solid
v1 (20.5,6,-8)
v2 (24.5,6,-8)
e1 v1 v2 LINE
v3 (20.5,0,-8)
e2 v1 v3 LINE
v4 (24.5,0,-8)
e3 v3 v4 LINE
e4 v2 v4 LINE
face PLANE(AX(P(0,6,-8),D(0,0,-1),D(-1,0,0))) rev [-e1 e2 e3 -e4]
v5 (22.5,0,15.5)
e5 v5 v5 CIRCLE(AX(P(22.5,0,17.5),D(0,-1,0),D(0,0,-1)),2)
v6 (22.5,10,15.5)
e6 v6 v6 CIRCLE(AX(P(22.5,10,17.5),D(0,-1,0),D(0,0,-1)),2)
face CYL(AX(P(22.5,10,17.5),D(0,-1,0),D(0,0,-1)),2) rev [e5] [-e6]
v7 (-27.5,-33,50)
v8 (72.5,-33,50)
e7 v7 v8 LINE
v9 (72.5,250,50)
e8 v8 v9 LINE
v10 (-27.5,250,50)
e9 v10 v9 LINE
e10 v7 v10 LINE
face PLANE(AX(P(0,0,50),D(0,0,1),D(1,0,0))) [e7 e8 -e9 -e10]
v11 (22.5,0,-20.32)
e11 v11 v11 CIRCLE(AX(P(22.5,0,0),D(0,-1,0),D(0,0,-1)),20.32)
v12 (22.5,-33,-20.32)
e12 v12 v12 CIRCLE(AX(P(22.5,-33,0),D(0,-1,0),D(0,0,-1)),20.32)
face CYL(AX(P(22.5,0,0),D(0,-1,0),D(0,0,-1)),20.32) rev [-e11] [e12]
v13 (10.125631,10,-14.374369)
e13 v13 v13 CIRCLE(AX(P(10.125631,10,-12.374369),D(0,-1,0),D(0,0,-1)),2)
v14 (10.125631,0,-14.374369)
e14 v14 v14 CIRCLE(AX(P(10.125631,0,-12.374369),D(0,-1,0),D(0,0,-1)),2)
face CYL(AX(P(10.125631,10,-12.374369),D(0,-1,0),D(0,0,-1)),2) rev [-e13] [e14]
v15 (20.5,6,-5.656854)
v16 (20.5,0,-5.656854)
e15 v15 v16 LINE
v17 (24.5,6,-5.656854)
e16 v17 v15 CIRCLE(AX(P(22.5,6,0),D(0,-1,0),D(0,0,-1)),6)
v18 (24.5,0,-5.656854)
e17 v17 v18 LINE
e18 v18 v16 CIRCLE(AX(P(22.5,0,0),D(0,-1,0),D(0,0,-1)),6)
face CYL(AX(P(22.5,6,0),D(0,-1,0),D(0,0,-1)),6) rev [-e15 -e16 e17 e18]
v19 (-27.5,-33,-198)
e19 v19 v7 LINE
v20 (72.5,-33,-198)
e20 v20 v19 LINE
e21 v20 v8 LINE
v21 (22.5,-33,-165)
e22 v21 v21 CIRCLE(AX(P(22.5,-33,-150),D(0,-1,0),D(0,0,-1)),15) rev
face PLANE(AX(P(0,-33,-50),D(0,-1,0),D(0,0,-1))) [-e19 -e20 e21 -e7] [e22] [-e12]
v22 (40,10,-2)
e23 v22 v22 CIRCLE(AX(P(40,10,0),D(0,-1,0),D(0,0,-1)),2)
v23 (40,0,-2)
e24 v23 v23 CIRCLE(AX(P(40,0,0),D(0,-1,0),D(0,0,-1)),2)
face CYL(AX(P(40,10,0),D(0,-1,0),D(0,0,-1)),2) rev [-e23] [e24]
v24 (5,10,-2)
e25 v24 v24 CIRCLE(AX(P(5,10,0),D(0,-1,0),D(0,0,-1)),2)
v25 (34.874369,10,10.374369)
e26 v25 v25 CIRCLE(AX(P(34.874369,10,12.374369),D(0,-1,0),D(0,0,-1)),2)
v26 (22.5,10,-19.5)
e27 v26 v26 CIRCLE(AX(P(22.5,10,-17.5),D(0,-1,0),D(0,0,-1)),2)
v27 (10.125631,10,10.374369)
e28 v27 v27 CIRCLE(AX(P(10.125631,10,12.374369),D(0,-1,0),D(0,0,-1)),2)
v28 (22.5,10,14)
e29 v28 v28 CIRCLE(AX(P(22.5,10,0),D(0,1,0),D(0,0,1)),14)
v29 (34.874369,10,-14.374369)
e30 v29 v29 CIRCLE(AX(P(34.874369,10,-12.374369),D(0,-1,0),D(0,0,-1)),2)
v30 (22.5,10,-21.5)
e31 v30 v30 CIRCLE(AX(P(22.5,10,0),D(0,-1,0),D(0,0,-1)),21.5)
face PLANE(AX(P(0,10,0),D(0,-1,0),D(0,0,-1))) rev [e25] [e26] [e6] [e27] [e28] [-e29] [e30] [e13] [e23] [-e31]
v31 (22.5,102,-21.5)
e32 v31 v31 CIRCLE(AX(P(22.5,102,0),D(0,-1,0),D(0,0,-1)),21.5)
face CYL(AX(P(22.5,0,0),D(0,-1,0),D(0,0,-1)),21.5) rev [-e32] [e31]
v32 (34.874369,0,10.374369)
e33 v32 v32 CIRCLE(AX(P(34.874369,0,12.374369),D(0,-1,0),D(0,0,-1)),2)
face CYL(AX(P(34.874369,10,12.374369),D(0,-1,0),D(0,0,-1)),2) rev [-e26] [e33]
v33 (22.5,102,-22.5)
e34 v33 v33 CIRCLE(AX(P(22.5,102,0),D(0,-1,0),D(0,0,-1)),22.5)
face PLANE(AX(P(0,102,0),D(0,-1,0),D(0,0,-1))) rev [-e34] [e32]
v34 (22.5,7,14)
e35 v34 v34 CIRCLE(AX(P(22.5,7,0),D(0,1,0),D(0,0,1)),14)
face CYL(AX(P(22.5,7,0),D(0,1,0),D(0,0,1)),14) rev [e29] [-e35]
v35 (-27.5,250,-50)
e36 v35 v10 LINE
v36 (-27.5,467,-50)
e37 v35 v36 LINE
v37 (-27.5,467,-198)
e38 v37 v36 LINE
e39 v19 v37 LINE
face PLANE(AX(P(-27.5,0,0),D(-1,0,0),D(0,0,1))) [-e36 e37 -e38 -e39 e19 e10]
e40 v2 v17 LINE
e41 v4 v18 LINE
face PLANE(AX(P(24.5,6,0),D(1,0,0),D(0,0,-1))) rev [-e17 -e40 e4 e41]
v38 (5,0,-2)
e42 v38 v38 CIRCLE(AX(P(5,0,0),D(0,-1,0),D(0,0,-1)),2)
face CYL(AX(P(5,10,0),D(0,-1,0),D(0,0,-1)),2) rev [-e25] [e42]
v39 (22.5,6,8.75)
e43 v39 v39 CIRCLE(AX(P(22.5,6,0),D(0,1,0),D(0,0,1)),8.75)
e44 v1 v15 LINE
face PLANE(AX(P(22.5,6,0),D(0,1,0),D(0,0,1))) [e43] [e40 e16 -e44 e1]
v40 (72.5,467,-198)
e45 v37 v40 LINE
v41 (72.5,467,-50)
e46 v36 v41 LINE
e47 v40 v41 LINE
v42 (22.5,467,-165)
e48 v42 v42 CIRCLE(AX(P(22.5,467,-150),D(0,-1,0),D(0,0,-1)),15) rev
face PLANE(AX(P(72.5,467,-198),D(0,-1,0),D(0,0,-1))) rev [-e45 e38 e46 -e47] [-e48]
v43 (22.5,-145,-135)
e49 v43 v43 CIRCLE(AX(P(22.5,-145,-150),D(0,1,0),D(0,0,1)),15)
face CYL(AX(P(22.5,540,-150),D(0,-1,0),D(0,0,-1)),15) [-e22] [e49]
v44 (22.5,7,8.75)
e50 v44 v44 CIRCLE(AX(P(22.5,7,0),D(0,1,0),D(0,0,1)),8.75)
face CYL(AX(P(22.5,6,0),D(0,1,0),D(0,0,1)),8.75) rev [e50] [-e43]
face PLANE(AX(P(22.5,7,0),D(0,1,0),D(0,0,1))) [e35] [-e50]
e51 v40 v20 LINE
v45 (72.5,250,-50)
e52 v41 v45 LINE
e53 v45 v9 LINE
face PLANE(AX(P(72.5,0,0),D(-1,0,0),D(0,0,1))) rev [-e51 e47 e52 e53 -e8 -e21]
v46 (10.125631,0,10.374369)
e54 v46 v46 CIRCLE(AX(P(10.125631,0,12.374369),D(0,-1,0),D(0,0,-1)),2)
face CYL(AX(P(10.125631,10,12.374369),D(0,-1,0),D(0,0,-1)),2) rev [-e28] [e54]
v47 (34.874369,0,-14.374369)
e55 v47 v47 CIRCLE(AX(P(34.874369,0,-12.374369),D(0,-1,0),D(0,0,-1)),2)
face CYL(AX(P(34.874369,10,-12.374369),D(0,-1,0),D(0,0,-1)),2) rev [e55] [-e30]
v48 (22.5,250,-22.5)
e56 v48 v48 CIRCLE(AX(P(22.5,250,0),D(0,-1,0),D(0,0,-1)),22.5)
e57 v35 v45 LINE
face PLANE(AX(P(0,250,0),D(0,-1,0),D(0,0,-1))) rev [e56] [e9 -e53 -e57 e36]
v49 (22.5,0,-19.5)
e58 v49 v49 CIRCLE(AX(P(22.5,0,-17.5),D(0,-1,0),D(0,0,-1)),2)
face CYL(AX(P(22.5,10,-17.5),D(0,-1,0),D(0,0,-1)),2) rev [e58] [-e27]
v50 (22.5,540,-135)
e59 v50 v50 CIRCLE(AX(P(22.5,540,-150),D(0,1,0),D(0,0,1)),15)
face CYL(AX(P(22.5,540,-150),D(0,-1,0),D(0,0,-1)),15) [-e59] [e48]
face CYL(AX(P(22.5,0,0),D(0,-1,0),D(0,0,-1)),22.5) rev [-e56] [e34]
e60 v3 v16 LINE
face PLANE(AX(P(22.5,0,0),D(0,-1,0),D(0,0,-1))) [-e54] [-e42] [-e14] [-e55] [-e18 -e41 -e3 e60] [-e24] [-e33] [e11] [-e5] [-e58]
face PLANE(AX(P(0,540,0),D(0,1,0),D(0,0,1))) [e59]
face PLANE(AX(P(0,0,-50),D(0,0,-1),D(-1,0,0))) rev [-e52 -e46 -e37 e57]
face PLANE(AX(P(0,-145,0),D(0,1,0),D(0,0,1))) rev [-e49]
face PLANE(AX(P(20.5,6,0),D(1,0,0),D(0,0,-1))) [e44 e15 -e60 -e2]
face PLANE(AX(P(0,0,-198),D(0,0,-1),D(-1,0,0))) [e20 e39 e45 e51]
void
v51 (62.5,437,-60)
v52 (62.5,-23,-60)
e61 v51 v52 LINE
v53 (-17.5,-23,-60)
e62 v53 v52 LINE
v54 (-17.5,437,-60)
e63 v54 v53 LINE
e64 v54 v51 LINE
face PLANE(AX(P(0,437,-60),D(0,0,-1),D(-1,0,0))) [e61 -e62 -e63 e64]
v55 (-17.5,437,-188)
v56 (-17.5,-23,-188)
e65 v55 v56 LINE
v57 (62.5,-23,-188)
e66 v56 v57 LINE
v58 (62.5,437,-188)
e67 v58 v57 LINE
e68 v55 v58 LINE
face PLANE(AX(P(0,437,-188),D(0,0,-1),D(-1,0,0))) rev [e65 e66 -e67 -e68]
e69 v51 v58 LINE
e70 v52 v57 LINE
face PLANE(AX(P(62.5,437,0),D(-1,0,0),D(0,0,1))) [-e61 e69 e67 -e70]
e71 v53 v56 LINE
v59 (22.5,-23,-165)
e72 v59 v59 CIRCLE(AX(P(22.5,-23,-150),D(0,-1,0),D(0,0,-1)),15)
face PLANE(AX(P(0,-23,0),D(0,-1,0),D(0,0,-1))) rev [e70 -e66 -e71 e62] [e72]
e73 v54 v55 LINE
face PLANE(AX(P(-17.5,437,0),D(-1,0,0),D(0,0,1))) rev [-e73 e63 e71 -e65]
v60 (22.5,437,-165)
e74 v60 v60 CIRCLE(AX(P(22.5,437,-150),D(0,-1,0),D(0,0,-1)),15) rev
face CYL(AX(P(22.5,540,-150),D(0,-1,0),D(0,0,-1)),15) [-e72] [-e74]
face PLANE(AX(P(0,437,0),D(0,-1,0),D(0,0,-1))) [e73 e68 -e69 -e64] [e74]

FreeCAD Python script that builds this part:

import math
import FreeCAD as App
import Part
import Sketcher
from FreeCAD import Vector
Q = App.Units.Quantity


def add_polygon(sketch, points):
    """Adds a closed chain of lines whose ends are joined by coincident constraints."""
    first, n = sketch.GeometryCount, len(points)
    for a, b in zip(points, points[1:] + points[:1]):
        sketch.addGeometry(Part.LineSegment(App.Vector(*a, 0), App.Vector(*b, 0)), False)
    for i in range(n):
        sketch.addConstraint(Sketcher.Constraint("Coincident", first + i, 2, first + (i + 1) % n, 1))

doc = App.newDocument("Part")
params = doc.addObject("Spreadsheet::Sheet", "Params")
for row, (alias, value) in enumerate([
    ("sketch1_width", "1 mm"),
    ("sketch1_width2", "10 mm"),
    ("sketch1_height", "92 mm"),
    ("sketch1_height2", "148 mm"),
    ("sketch1_width3", "26.5 mm"),
    ("revolution_angle", "360 deg"),
    ("sketch2_diameter", "100 mm"),
    ("sketch2_diameter2", "65 mm"),
    ("pad1_length", "250 mm"),
    ("sketch3_radius", "50 mm"),
    ("pad2_length", "250 mm"),
    ("sketch4_width", "100 mm"),
    ("sketch4_height", "33 mm"),
    ("pad3_length", "50 mm"),
    ("pad3_length2", "50 mm"),
    ("sketch5_width", "100 mm"),
    ("sketch5_height", "500 mm"),
    ("pad4_length", "148 mm"),
    ("sketch6_diameter", "30 mm"),
    ("pad5_length", "73 mm"),
    ("pad5_length2", "612 mm"),
    ("sketch7_diameter", "30 mm"),
    ("sketch7_width", "80 mm"),
    ("sketch7_height", "128 mm"),
    ("pocket1_length", "470 mm"),
    ("sketch8_diameter", "30 mm"),
    ("sketch8_width", "80 mm"),
    ("sketch8_height", "128 mm"),
    ("pad6_length", "10 mm"),
    ("sketch9_width", "6 mm"),
    ("sketch9_height", "10 mm"),
    ("revolution2_angle", "360 deg"),
    ("sketch10_diameter", "40.64 mm"),
    ("pocket2_length", "33 mm"),
    ("sketch11_diameter", "4 mm"),
    ("pocket3_length", "10 mm"),
    ("sketch12_diameter", "28 mm"),
    ("pocket4_length", "3 mm"),
    ("sketch13_diameter", "17.5 mm"),
    ("pocket5_length", "4 mm"),
    ("sketch14_diameter", "12 mm"),
    ("pocket6_length", "6 mm"),
    ("sketch15_radius", "6 mm"),
    ("sketch15_width", "4 mm"),
    ("pocket7_length", "6 mm"),
], start=1):
    params.set(f"A{row}", alias)
    params.set(f"B{row}", "=" + value)
    params.setAlias(f"B{row}", alias)

body = doc.addObject("PartDesign::Body", "Body")

# Sketch on XY plane
sketch1 = body.newObject("Sketcher::SketchObject", "Sketch")
sketch1.AttachmentSupport = (doc.getObject("XY_Plane"), [""])
sketch1.MapMode = "FlatFace"
add_polygon(sketch1, [(-10, 0), (16.5, 0), (16.5, 10), (1, 10), (1, 102), (0, 102), (0, 250), (-10, 250)])  # lines 0-7
add_polygon(sketch1, [(28.5, 10), (28.5, 0), (55, 0), (55, 250), (45, 250), (45, 102), (44, 102), (44, 10)])  # lines 8-15
sketch1.addGeometry(Part.LineSegment(Vector(22.5, 0, 0), Vector(22.5, 250, 0)), True)  # axis
sketch1.addConstraint([
    Sketcher.Constraint("Horizontal", 0),
    Sketcher.Constraint("Vertical", 1),
    Sketcher.Constraint("Horizontal", 2),
    Sketcher.Constraint("Vertical", 3),
    Sketcher.Constraint("Horizontal", 4),
    Sketcher.Constraint("Vertical", 5),
    Sketcher.Constraint("Horizontal", 6),
    Sketcher.Constraint("Vertical", 7),
    Sketcher.Constraint("Vertical", 8),
    Sketcher.Constraint("Horizontal", 9),
    Sketcher.Constraint("Vertical", 10),
    Sketcher.Constraint("Horizontal", 11),
    Sketcher.Constraint("Vertical", 12),
    Sketcher.Constraint("Horizontal", 13),
    Sketcher.Constraint("Vertical", 14),
    Sketcher.Constraint("Horizontal", 15),
    Sketcher.Constraint("Vertical", 16),
    Sketcher.Constraint("PointOnObject", 0, 2, -1),
    Sketcher.Constraint("PointOnObject", 4, 2, -2),
    Sketcher.Constraint("PointOnObject", 8, 2, -1),
    Sketcher.Constraint("PointOnObject", 16, 1, -1),
    Sketcher.Constraint("Horizontal", 6, 2, 10, 2),
    Sketcher.Constraint("Horizontal", 4, 2, 12, 2),
    Sketcher.Constraint("Horizontal", 2, 2, 14, 2),
    Sketcher.Constraint("Horizontal", 11, 2, 16, 2),
    Sketcher.Constraint("Equal", 0, 9),
    Sketcher.Constraint("Equal", 6, 11),
    Sketcher.Constraint("Equal", 4, 13),
    Sketcher.Constraint("Equal", 11, 1),
    Sketcher.Constraint("DistanceX", 4, 2, 4, 1, Q("1 mm")),
    Sketcher.Constraint("DistanceX", 6, 2, 6, 1, Q("10 mm")),
    Sketcher.Constraint("DistanceY", 3, 1, 3, 2, Q("92 mm")),
    Sketcher.Constraint("DistanceY", 5, 1, 5, 2, Q("148 mm")),
    Sketcher.Constraint("DistanceX", 0, 1, 0, 2, Q("26.5 mm")),
    Sketcher.Constraint("DistanceX", -1, 1, 9, 2, Q("55 mm")),
    Sketcher.Constraint("DistanceX", 0, 2, 16, 1, Q("6 mm")),
])
sketch1.setExpression("Constraints[45]", "Params.sketch1_width")
sketch1.setExpression("Constraints[46]", "Params.sketch1_width2")
sketch1.setExpression("Constraints[47]", "Params.sketch1_height")
sketch1.setExpression("Constraints[48]", "Params.sketch1_height2")
sketch1.setExpression("Constraints[49]", "Params.sketch1_width3")
revolution = body.newObject("PartDesign::Revolution", "Revolution")
revolution.Profile = sketch1
revolution.ReferenceAxis = (sketch1, ["Axis0"])
revolution.setExpression("Angle", "Params.revolution_angle")

# Sketch on XZ plane
sketch2 = body.newObject("Sketcher::SketchObject", "Sketch001")
sketch2.AttachmentSupport = (doc.getObject("XZ_Plane"), [""])
sketch2.MapMode = "FlatFace"
sketch2.AttachmentOffset = App.Placement(Vector(0, 0, -250), App.Rotation())
sketch2.addGeometry([
    Part.Circle(Vector(22.5, 0, 0), Vector(0, 0, 1), 50),
    Part.Circle(Vector(22.5, 0, 0), Vector(0, 0, 1), 32.5),
], False)
sketch2.addConstraint([
    Sketcher.Constraint("Coincident", 1, 3, 0, 3),
    Sketcher.Constraint("PointOnObject", 0, 3, -1),
    Sketcher.Constraint("Diameter", 0, Q("100 mm")),
    Sketcher.Constraint("Diameter", 1, Q("65 mm")),
    Sketcher.Constraint("DistanceX", -1, 1, 0, 3, Q("22.5 mm")),
])
sketch2.setExpression("Constraints[2]", "Params.sketch2_diameter")
sketch2.setExpression("Constraints[3]", "Params.sketch2_diameter2")
pad1 = body.newObject("PartDesign::Pad", "Pad")
pad1.Profile = sketch2
pad1.setExpression("Length", "Params.pad1_length")

# Sketch on XZ plane
sketch3 = body.newObject("Sketcher::SketchObject", "Sketch002")
sketch3.AttachmentSupport = (doc.getObject("XZ_Plane"), [""])
sketch3.MapMode = "FlatFace"
sketch3.AttachmentOffset = App.Placement(Vector(0, 0, -250), App.Rotation())
sketch3.addGeometry([
    Part.ArcOfCircle(Part.Circle(Vector(22.5, 0, 0), Vector(0, 0, 1), 50), math.radians(0), math.radians(90)),  # 0
    Part.LineSegment(Vector(22.5, 50, 0), Vector(72.5, 50, 0)),  # 1
    Part.LineSegment(Vector(72.5, 50, 0), Vector(72.5, 0, 0)),  # 2
    Part.ArcOfCircle(Part.Circle(Vector(22.5, 0, 0), Vector(0, 0, 1), 50), math.radians(90), math.radians(180)),  # 3
    Part.LineSegment(Vector(-27.5, 0, 0), Vector(-27.5, 50, 0)),  # 4
    Part.LineSegment(Vector(-27.5, 50, 0), Vector(22.5, 50, 0)),  # 5
    Part.LineSegment(Vector(72.5, -50, 0), Vector(22.5, -50, 0)),  # 6
    Part.ArcOfCircle(Part.Circle(Vector(22.5, 0, 0), Vector(0, 0, 1), 50), math.radians(-90), math.radians(0)),  # 7
    Part.LineSegment(Vector(72.5, 0, 0), Vector(72.5, -50, 0)),  # 8
    Part.LineSegment(Vector(-27.5, -50, 0), Vector(-27.5, 0, 0)),  # 9
    Part.ArcOfCircle(Part.Circle(Vector(22.5, 0, 0), Vector(0, 0, 1), 50), math.radians(-180), math.radians(-90)),  # 10
    Part.LineSegment(Vector(22.5, -50, 0), Vector(-27.5, -50, 0)),  # 11
], False)
sketch3.addConstraint([
    Sketcher.Constraint("Tangent", 0, 2, 1, 1),
    Sketcher.Constraint("Coincident", 1, 2, 2, 1),
    Sketcher.Constraint("Tangent", 2, 2, 0, 1),
    Sketcher.Constraint("Tangent", 3, 2, 4, 1),
    Sketcher.Constraint("Coincident", 4, 2, 5, 1),
    Sketcher.Constraint("Tangent", 5, 2, 3, 1),
    Sketcher.Constraint("Tangent", 6, 2, 7, 1),
    Sketcher.Constraint("Tangent", 7, 2, 8, 1),
    Sketcher.Constraint("Coincident", 8, 2, 6, 1),
    Sketcher.Constraint("Tangent", 9, 2, 10, 1),
    Sketcher.Constraint("Tangent", 10, 2, 11, 1),
    Sketcher.Constraint("Coincident", 11, 2, 9, 1),
    Sketcher.Constraint("Horizontal", 1),
    Sketcher.Constraint("Vertical", 2),
    Sketcher.Constraint("Vertical", 4),
    Sketcher.Constraint("Horizontal", 5),
    Sketcher.Constraint("Horizontal", 6),
    Sketcher.Constraint("Vertical", 8),
    Sketcher.Constraint("Vertical", 9),
    Sketcher.Constraint("Horizontal", 11),
    Sketcher.Constraint("Coincident", 3, 3, 0, 3),
    Sketcher.Constraint("Coincident", 7, 3, 0, 3),
    Sketcher.Constraint("Coincident", 10, 3, 0, 3),
    Sketcher.Constraint("Equal", 0, 3),
    Sketcher.Constraint("Equal", 3, 7),
    Sketcher.Constraint("Equal", 7, 10),
    Sketcher.Constraint("PointOnObject", 0, 3, -1),
    Sketcher.Constraint("Radius", 0, Q("50 mm")),
    Sketcher.Constraint("DistanceX", -1, 1, 0, 3, Q("22.5 mm")),
])
sketch3.setExpression("Constraints[27]", "Params.sketch3_radius")
pad2 = body.newObject("PartDesign::Pad", "Pad001")
pad2.Profile = sketch3
pad2.setExpression("Length", "Params.pad2_length")

# Sketch on XY plane
sketch4 = body.newObject("Sketcher::SketchObject", "Sketch003")
sketch4.AttachmentSupport = (doc.getObject("XY_Plane"), [""])
sketch4.MapMode = "FlatFace"
add_polygon(sketch4, [(-27.5, 0), (-27.5, -33), (72.5, -33), (72.5, 0)])  # lines 0-3
sketch4.addConstraint([
    Sketcher.Constraint("Vertical", 0),
    Sketcher.Constraint("Horizontal", 1),
    Sketcher.Constraint("Vertical", 2),
    Sketcher.Constraint("Horizontal", 3),
    Sketcher.Constraint("PointOnObject", 2, 2, -1),
    Sketcher.Constraint("DistanceX", 1, 1, 1, 2, Q("100 mm")),
    Sketcher.Constraint("DistanceY", 0, 2, 0, 1, Q("33 mm")),
    Sketcher.Constraint("DistanceX", 0, 2, -1, 1, Q("27.5 mm")),
])
sketch4.setExpression("Constraints[9]", "Params.sketch4_width")
sketch4.setExpression("Constraints[10]", "Params.sketch4_height")
pad3 = body.newObject("PartDesign::Pad", "Pad002")
pad3.Profile = sketch4
pad3.Type = "TwoLengths"
pad3.setExpression("Length", "Params.pad3_length")
pad3.setExpression("Length2", "Params.pad3_length2")

# Sketch on XY plane
sketch5 = body.newObject("Sketcher::SketchObject", "Sketch004")
sketch5.AttachmentSupport = (doc.getObject("XY_Plane"), [""])
sketch5.MapMode = "FlatFace"
sketch5.AttachmentOffset = App.Placement(Vector(0, 0, -50), App.Rotation())
add_polygon(sketch5, [(72.5, 467), (72.5, -33), (-27.5, -33), (-27.5, 467)])  # lines 0-3
sketch5.addConstraint([
    Sketcher.Constraint("Vertical", 0),
    Sketcher.Constraint("Horizontal", 1),
    Sketcher.Constraint("Vertical", 2),
    Sketcher.Constraint("Horizontal", 3),
    Sketcher.Constraint("DistanceX", 1, 2, 1, 1, Q("100 mm")),
    Sketcher.Constraint("DistanceY", 0, 2, 0, 1, Q("500 mm")),
    Sketcher.Constraint("DistanceY", 0, 2, -1, 1, Q("33 mm")),
    Sketcher.Constraint("DistanceX", -1, 1, 0, 2, Q("72.5 mm")),
])
sketch5.setExpression("Constraints[8]", "Params.sketch5_width")
sketch5.setExpression("Constraints[9]", "Params.sketch5_height")
pad4 = body.newObject("PartDesign::Pad", "Pad003")
pad4.Profile = sketch5
pad4.setExpression("Length", "Params.pad4_length")
pad4.Reversed = True

# Sketch on XZ plane
sketch6 = body.newObject("Sketcher::SketchObject", "Sketch005")
sketch6.AttachmentSupport = (doc.getObject("XZ_Plane"), [""])
sketch6.MapMode = "FlatFace"
sketch6.AttachmentOffset = App.Placement(Vector(0, 0, -467), App.Rotation())
sketch6.addGeometry(Part.Circle(Vector(22.5, -150, 0), Vector(0, 0, 1), 15), False)
sketch6.addConstraint([
    Sketcher.Constraint("Diameter", 0, Q("30 mm")),
    Sketcher.Constraint("DistanceY", 0, 3, -1, 1, Q("150 mm")),
    Sketcher.Constraint("DistanceX", -1, 1, 0, 3, Q("22.5 mm")),
])
sketch6.setExpression("Constraints[0]", "Params.sketch6_diameter")
pad5 = body.newObject("PartDesign::Pad", "Pad004")
pad5.Profile = sketch6
pad5.Type = "TwoLengths"
pad5.setExpression("Length", "Params.pad5_length")
pad5.setExpression("Length2", "Params.pad5_length2")
pad5.Reversed = True

# Sketch on XZ plane
sketch7 = body.newObject("Sketcher::SketchObject", "Sketch006")
sketch7.AttachmentSupport = (doc.getObject("XZ_Plane"), [""])
sketch7.MapMode = "FlatFace"
sketch7.AttachmentOffset = App.Placement(Vector(0, 0, 33), App.Rotation())
add_polygon(sketch7, [(-17.5, -60), (-17.5, -188), (62.5, -188), (62.5, -60)])  # lines 0-3
sketch7.addGeometry(Part.Circle(Vector(22.5, -150, 0), Vector(0, 0, 1), 15), False)  # 4
sketch7.addConstraint([
    Sketcher.Constraint("Vertical", 0),
    Sketcher.Constraint("Horizontal", 1),
    Sketcher.Constraint("Vertical", 2),
    Sketcher.Constraint("Horizontal", 3),
    Sketcher.Constraint("Diameter", 4, Q("30 mm")),
    Sketcher.Constraint("DistanceX", 1, 1, 1, 2, Q("80 mm")),
    Sketcher.Constraint("DistanceY", 0, 2, 0, 1, Q("128 mm")),
    Sketcher.Constraint("DistanceY", 4, 3, -1, 1, Q("150 mm")),
    Sketcher.Constraint("DistanceY", 0, 2, -1, 1, Q("188 mm")),
    Sketcher.Constraint("DistanceX", 0, 2, 4, 3, Q("40 mm")),
    Sketcher.Constraint("DistanceX", -1, 1, 4, 3, Q("22.5 mm")),
])
sketch7.setExpression("Constraints[8]", "Params.sketch7_diameter")
sketch7.setExpression("Constraints[9]", "Params.sketch7_width")
sketch7.setExpression("Constraints[10]", "Params.sketch7_height")
pocket1 = body.newObject("PartDesign::Pocket", "Pocket")
pocket1.Profile = sketch7
pocket1.setExpression("Length", "Params.pocket1_length")

# Sketch on XZ plane
sketch8 = body.newObject("Sketcher::SketchObject", "Sketch007")
sketch8.AttachmentSupport = (doc.getObject("XZ_Plane"), [""])
sketch8.MapMode = "FlatFace"
sketch8.AttachmentOffset = App.Placement(Vector(0, 0, 33), App.Rotation())
add_polygon(sketch8, [(-17.5, -60), (-17.5, -188), (62.5, -188), (62.5, -60)])  # lines 0-3
sketch8.addGeometry(Part.Circle(Vector(22.5, -150, 0), Vector(0, 0, 1), 15), False)  # 4
sketch8.addConstraint([
    Sketcher.Constraint("Vertical", 0),
    Sketcher.Constraint("Horizontal", 1),
    Sketcher.Constraint("Vertical", 2),
    Sketcher.Constraint("Horizontal", 3),
    Sketcher.Constraint("Diameter", 4, Q("30 mm")),
    Sketcher.Constraint("DistanceX", 1, 1, 1, 2, Q("80 mm")),
    Sketcher.Constraint("DistanceY", 0, 2, 0, 1, Q("128 mm")),
    Sketcher.Constraint("DistanceY", 4, 3, -1, 1, Q("150 mm")),
    Sketcher.Constraint("DistanceY", 0, 2, -1, 1, Q("188 mm")),
    Sketcher.Constraint("DistanceX", 0, 2, 4, 3, Q("40 mm")),
    Sketcher.Constraint("DistanceX", -1, 1, 4, 3, Q("22.5 mm")),
])
sketch8.setExpression("Constraints[8]", "Params.sketch8_diameter")
sketch8.setExpression("Constraints[9]", "Params.sketch8_width")
sketch8.setExpression("Constraints[10]", "Params.sketch8_height")
pad6 = body.newObject("PartDesign::Pad", "Pad005")
pad6.Profile = sketch8
pad6.setExpression("Length", "Params.pad6_length")
pad6.Reversed = True

# Sketch on XY plane
sketch9 = body.newObject("Sketcher::SketchObject", "Sketch008")
sketch9.AttachmentSupport = (doc.getObject("XY_Plane"), [""])
sketch9.MapMode = "FlatFace"
add_polygon(sketch9, [(16.5, 10), (16.5, 0), (22.5, 0), (22.5, 10)])  # lines 0-3
sketch9.addGeometry(Part.LineSegment(Vector(22.5, 0, 0), Vector(22.5, 10, 0)), True)  # axis
sketch9.addConstraint([
    Sketcher.Constraint("Vertical", 0),
    Sketcher.Constraint("Horizontal", 1),
    Sketcher.Constraint("Vertical", 2),
    Sketcher.Constraint("Horizontal", 3),
    Sketcher.Constraint("Vertical", 4),
    Sketcher.Constraint("Coincident", 4, 1, 1, 2),
    Sketcher.Constraint("PointOnObject", 0, 2, -1),
    Sketcher.Constraint("Horizontal", 3, 2, 4, 2),
    Sketcher.Constraint("DistanceX", 1, 1, 1, 2, Q("6 mm")),
    Sketcher.Constraint("DistanceY", 0, 2, 0, 1, Q("10 mm")),
    Sketcher.Constraint("DistanceX", -1, 1, 0, 2, Q("16.5 mm")),
])
sketch9.setExpression("Constraints[12]", "Params.sketch9_width")
sketch9.setExpression("Constraints[13]", "Params.sketch9_height")
revolution2 = body.newObject("PartDesign::Revolution", "Revolution001")
revolution2.Profile = sketch9
revolution2.ReferenceAxis = (sketch9, ["Axis0"])
revolution2.setExpression("Angle", "Params.revolution2_angle")

# Sketch on XZ plane
sketch10 = body.newObject("Sketcher::SketchObject", "Sketch009")
sketch10.AttachmentSupport = (doc.getObject("XZ_Plane"), [""])
sketch10.MapMode = "FlatFace"
sketch10.AttachmentOffset = App.Placement(Vector(0, 0, 33), App.Rotation())
sketch10.addGeometry(Part.Circle(Vector(22.5, 0, 0), Vector(0, 0, 1), 20.32), False)
sketch10.addConstraint([
    Sketcher.Constraint("PointOnObject", 0, 3, -1),
    Sketcher.Constraint("Diameter", 0, Q("40.64 mm")),
    Sketcher.Constraint("DistanceX", -1, 1, 0, 3, Q("22.5 mm")),
])
sketch10.setExpression("Constraints[1]", "Params.sketch10_diameter")
pocket2 = body.newObject("PartDesign::Pocket", "Pocket001")
pocket2.Profile = sketch10
pocket2.setExpression("Length", "Params.pocket2_length")

# Sketch on XZ plane
sketch11 = body.newObject("Sketcher::SketchObject", "Sketch010")
sketch11.AttachmentSupport = (doc.getObject("XZ_Plane"), [""])
sketch11.MapMode = "FlatFace"
sketch11.addGeometry([
    Part.Circle(Vector(22.5, 17.5, 0), Vector(0, 0, 1), 2),  # 0
    Part.Circle(Vector(34.874369, 12.374369, 0), Vector(0, 0, 1), 2),  # 1
    Part.Circle(Vector(40, 0, 0), Vector(0, 0, 1), 2),  # 2
    Part.Circle(Vector(34.874369, -12.374369, 0), Vector(0, 0, 1), 2),  # 3
    Part.Circle(Vector(22.5, -17.5, 0), Vector(0, 0, 1), 2),  # 4
    Part.Circle(Vector(10.125631, -12.374369, 0), Vector(0, 0, 1), 2),  # 5
    Part.Circle(Vector(5, 0, 0), Vector(0, 0, 1), 2),  # 6
    Part.Circle(Vector(10.125631, 12.374369, 0), Vector(0, 0, 1), 2),  # 7
], False)
sketch11.addConstraint([
    Sketcher.Constraint("Equal", 0, 1),
    Sketcher.Constraint("Equal", 1, 2),
    Sketcher.Constraint("Equal", 2, 3),
    Sketcher.Constraint("Equal", 3, 4),
    Sketcher.Constraint("Equal", 4, 5),
    Sketcher.Constraint("Equal", 5, 6),
    Sketcher.Constraint("Equal", 6, 7),
    Sketcher.Constraint("Symmetric", 1, 3, 3, 3, -1),
    Sketcher.Constraint("Symmetric", 0, 3, 4, 3, -1),
    Sketcher.Constraint("Symmetric", 5, 3, 7, 3, -1),
    Sketcher.Constraint("PointOnObject", 2, 3, -1),
    Sketcher.Constraint("PointOnObject", 6, 3, -1),
    Sketcher.Constraint("Horizontal", 3, 3, 5, 3),
    Sketcher.Constraint("Diameter", 0, Q("4 mm")),
    Sketcher.Constraint("DistanceX", -1, 1, 2, 3, Q("40 mm")),
    Sketcher.Constraint("DistanceX", -1, 1, 6, 3, Q("5 mm")),
    Sketcher.Constraint("DistanceY", 4, 3, 0, 3, Q("35 mm")),
    Sketcher.Constraint("DistanceX", -1, 1, 0, 3, Q("22.5 mm")),
    Sketcher.Constraint("DistanceX", -1, 1, 1, 3, Q("34.874369 mm")),
    Sketcher.Constraint("DistanceY", -1, 1, 1, 3, Q("12.374369 mm")),
    Sketcher.Constraint("DistanceX", -1, 1, 5, 3, Q("10.125631 mm")),
])
sketch11.setExpression("Constraints[13]", "Params.sketch11_diameter")
pocket3 = body.newObject("PartDesign::Pocket", "Pocket002")
pocket3.Profile = sketch11
pocket3.setExpression("Length", "Params.pocket3_length")

# Sketch on XZ plane
sketch12 = body.newObject("Sketcher::SketchObject", "Sketch011")
sketch12.AttachmentSupport = (doc.getObject("XZ_Plane"), [""])
sketch12.MapMode = "FlatFace"
sketch12.AttachmentOffset = App.Placement(Vector(0, 0, -10), App.Rotation())
sketch12.addGeometry(Part.Circle(Vector(22.5, 0, 0), Vector(0, 0, 1), 14), False)
sketch12.addConstraint([
    Sketcher.Constraint("PointOnObject", 0, 3, -1),
    Sketcher.Constraint("Diameter", 0, Q("28 mm")),
    Sketcher.Constraint("DistanceX", -1, 1, 0, 3, Q("22.5 mm")),
])
sketch12.setExpression("Constraints[1]", "Params.sketch12_diameter")
pocket4 = body.newObject("PartDesign::Pocket", "Pocket003")
pocket4.Profile = sketch12
pocket4.setExpression("Length", "Params.pocket4_length")
pocket4.Reversed = True

# Sketch on XZ plane
sketch13 = body.newObject("Sketcher::SketchObject", "Sketch012")
sketch13.AttachmentSupport = (doc.getObject("XZ_Plane"), [""])
sketch13.MapMode = "FlatFace"
sketch13.AttachmentOffset = App.Placement(Vector(0, 0, -10), App.Rotation())
sketch13.addGeometry(Part.Circle(Vector(22.5, 0, 0), Vector(0, 0, 1), 8.75), False)
sketch13.addConstraint([
    Sketcher.Constraint("PointOnObject", 0, 3, -1),
    Sketcher.Constraint("Diameter", 0, Q("17.5 mm")),
    Sketcher.Constraint("DistanceX", -1, 1, 0, 3, Q("22.5 mm")),
])
sketch13.setExpression("Constraints[1]", "Params.sketch13_diameter")
pocket5 = body.newObject("PartDesign::Pocket", "Pocket004")
pocket5.Profile = sketch13
pocket5.setExpression("Length", "Params.pocket5_length")
pocket5.Reversed = True

# Sketch on XZ plane
sketch14 = body.newObject("Sketcher::SketchObject", "Sketch013")
sketch14.AttachmentSupport = (doc.getObject("XZ_Plane"), [""])
sketch14.MapMode = "FlatFace"
sketch14.addGeometry(Part.Circle(Vector(22.5, 0, 0), Vector(0, 0, 1), 6), False)
sketch14.addConstraint([
    Sketcher.Constraint("PointOnObject", 0, 3, -1),
    Sketcher.Constraint("Diameter", 0, Q("12 mm")),
    Sketcher.Constraint("DistanceX", -1, 1, 0, 3, Q("22.5 mm")),
])
sketch14.setExpression("Constraints[1]", "Params.sketch14_diameter")
pocket6 = body.newObject("PartDesign::Pocket", "Pocket005")
pocket6.Profile = sketch14
pocket6.setExpression("Length", "Params.pocket6_length")

# Sketch on XZ plane
sketch15 = body.newObject("Sketcher::SketchObject", "Sketch014")
sketch15.AttachmentSupport = (doc.getObject("XZ_Plane"), [""])
sketch15.MapMode = "FlatFace"
sketch15.addGeometry([
    Part.LineSegment(Vector(20.5, -8, 0), Vector(24.5, -8, 0)),
    Part.LineSegment(Vector(24.5, -8, 0), Vector(24.5, -5.656854, 0)),
    Part.ArcOfCircle(Part.Circle(Vector(22.5, 0, 0), Vector(0, 0, 1), 6), math.radians(-109.471221), math.radians(-70.528779)),
    Part.LineSegment(Vector(20.5, -5.656854, 0), Vector(20.5, -8, 0)),
], False)
sketch15.addConstraint([
    Sketcher.Constraint("Coincident", 0, 2, 1, 1),
    Sketcher.Constraint("Coincident", 1, 2, 2, 2),
    Sketcher.Constraint("Coincident", 2, 1, 3, 1),
    Sketcher.Constraint("Coincident", 3, 2, 0, 1),
    Sketcher.Constraint("Horizontal", 0),
    Sketcher.Constraint("Vertical", 1),
    Sketcher.Constraint("Vertical", 3),
    Sketcher.Constraint("PointOnObject", 2, 3, -1),
    Sketcher.Constraint("Horizontal", 1, 2, 2, 1),
    Sketcher.Constraint("Radius", 2, Q("6 mm")),
    Sketcher.Constraint("DistanceX", 0, 1, 0, 2, Q("4 mm")),
    Sketcher.Constraint("DistanceY", 0, 2, -1, 1, Q("8 mm")),
    Sketcher.Constraint("DistanceX", -1, 1, 2, 3, Q("22.5 mm")),
])
sketch15.setExpression("Constraints[9]", "Params.sketch15_radius")
sketch15.setExpression("Constraints[10]", "Params.sketch15_width")
pocket7 = body.newObject("PartDesign::Pocket", "Pocket006")
pocket7.Profile = sketch15
pocket7.setExpression("Length", "Params.pocket7_length")

doc.recompute()
